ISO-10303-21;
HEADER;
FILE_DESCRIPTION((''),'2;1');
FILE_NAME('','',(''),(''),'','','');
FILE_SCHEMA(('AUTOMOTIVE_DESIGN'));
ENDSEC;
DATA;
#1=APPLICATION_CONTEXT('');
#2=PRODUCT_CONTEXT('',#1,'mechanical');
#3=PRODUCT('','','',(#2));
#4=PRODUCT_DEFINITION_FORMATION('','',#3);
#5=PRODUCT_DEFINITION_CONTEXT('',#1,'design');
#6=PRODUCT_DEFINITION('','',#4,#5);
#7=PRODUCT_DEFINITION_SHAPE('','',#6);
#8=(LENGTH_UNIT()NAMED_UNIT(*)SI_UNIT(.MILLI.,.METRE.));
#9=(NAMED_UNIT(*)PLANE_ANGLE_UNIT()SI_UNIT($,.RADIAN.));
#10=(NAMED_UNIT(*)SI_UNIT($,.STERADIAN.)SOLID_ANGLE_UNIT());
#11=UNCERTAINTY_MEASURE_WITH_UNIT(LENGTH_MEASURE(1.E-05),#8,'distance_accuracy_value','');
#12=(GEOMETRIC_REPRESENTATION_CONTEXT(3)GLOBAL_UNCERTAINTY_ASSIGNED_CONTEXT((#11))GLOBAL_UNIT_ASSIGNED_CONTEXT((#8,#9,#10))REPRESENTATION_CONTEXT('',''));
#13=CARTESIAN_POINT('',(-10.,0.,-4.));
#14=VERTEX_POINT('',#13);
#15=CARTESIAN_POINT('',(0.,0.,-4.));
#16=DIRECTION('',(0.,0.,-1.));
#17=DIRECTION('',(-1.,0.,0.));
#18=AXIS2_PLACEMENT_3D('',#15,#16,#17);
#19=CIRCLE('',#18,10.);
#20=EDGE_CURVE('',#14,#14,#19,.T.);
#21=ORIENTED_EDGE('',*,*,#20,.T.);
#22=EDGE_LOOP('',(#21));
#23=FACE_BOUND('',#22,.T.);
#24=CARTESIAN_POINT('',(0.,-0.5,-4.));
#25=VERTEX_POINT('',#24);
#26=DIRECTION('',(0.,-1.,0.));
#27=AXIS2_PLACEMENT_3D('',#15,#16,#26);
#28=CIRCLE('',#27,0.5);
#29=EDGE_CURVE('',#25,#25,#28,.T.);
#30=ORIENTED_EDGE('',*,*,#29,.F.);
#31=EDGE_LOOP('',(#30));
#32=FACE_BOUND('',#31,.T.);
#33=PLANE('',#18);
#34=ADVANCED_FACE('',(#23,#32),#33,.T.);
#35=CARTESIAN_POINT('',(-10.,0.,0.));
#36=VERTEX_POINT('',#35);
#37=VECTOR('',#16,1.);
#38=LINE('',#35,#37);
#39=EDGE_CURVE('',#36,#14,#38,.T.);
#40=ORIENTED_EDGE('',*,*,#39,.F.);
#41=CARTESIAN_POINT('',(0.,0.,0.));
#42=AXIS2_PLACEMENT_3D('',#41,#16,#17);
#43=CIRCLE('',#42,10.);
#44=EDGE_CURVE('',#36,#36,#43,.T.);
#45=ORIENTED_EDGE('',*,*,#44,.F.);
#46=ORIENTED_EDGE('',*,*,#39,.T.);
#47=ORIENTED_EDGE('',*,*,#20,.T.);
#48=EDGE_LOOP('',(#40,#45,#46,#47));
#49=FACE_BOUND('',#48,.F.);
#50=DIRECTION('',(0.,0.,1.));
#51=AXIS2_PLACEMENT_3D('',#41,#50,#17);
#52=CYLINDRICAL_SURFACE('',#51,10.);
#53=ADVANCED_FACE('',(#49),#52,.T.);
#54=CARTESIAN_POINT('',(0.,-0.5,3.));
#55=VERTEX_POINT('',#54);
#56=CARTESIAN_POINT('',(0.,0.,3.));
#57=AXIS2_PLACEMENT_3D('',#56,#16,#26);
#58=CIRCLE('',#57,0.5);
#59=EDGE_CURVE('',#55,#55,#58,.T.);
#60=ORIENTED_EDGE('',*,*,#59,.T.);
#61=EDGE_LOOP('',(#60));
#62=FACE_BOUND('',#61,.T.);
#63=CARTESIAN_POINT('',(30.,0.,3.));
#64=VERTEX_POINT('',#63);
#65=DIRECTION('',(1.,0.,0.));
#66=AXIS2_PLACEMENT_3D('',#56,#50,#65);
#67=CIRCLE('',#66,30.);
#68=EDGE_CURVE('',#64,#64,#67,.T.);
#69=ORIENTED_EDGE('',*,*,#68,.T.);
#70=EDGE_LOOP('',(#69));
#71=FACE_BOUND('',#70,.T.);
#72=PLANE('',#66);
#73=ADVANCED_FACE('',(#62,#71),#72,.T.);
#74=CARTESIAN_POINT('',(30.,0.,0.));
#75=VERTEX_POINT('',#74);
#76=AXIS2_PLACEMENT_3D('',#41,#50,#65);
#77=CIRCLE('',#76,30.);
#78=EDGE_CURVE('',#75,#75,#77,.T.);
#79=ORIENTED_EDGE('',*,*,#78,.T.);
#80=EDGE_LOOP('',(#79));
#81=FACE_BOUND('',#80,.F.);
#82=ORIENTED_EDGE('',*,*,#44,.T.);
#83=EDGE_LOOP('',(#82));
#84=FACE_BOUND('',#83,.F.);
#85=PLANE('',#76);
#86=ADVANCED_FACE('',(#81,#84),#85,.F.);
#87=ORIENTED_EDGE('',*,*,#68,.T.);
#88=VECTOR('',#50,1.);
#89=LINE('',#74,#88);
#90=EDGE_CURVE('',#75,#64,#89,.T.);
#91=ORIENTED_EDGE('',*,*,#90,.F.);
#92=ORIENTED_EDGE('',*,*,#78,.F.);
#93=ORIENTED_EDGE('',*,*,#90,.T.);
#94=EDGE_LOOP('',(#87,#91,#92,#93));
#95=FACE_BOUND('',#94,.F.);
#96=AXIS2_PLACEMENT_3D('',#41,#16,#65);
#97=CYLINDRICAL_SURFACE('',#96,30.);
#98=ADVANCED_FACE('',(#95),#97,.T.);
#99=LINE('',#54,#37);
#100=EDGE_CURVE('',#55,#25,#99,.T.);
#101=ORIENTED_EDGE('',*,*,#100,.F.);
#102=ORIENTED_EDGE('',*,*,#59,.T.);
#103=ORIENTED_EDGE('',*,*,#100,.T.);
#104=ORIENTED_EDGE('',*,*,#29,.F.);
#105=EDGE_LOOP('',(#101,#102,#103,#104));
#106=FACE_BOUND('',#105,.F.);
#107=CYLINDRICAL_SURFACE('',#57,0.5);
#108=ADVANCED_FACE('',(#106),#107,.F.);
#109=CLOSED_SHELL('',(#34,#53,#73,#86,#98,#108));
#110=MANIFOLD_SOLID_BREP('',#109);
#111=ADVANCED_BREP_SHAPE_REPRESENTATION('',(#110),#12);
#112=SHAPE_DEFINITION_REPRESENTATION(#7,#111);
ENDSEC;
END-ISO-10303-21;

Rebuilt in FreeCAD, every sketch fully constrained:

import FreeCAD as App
import Part
import Sketcher

V = App.Vector

doc = App.newDocument("Part")
body = doc.addObject("PartDesign::Body", "Body")

# Sketch on XY plane
sketch1 = doc.addObject("Sketcher::SketchObject", "Sketch")
body.addObject(sketch1)
sketch1.AttachmentSupport = (doc.XY_Plane, [""])
sketch1.MapMode = "FlatFace"
sketch1.addGeometry(Part.Circle(V(0, 0, 0), V(0, 0, 1), 30), False)
sketch1.addConstraint(Sketcher.Constraint("Coincident", 0, 3, -1, 1))
sketch1.addConstraint(Sketcher.Constraint("Diameter", 0, 60.0))
pad1 = doc.addObject("PartDesign::Pad", "Pad")
body.addObject(pad1)
pad1.Profile = sketch1
pad1.Length = 3

# Sketch on XY plane
sketch2 = doc.addObject("Sketcher::SketchObject", "Sketch001")
body.addObject(sketch2)
sketch2.AttachmentSupport = (doc.XY_Plane, [""])
sketch2.MapMode = "FlatFace"
sketch2.addGeometry(Part.Circle(V(0, 0, 0), V(0, 0, 1), 10), False)
sketch2.addConstraint(Sketcher.Constraint("Coincident", 0, 3, -1, 1))
sketch2.addConstraint(Sketcher.Constraint("Diameter", 0, 20.0))
pad2 = doc.addObject("PartDesign::Pad", "Pad001")
body.addObject(pad2)
pad2.Profile = sketch2
pad2.Length = 4
pad2.Reversed = True

# Sketch on XY plane
sketch3 = doc.addObject("Sketcher::SketchObject", "Sketch002")
body.addObject(sketch3)
sketch3.AttachmentSupport = (doc.XY_Plane, [""])
sketch3.MapMode = "FlatFace"
sketch3.AttachmentOffset = App.Placement(V(0, 0, 3), App.Rotation())
sketch3.addGeometry(Part.Circle(V(0, 0, 0), V(0, 0, 1), 0.5), False)
sketch3.addConstraint(Sketcher.Constraint("Coincident", 0, 3, -1, 1))
sketch3.addConstraint(Sketcher.Constraint("Diameter", 0, 1.0))
doc.recompute()
hole = doc.addObject("PartDesign::Hole", "Hole")
body.addObject(hole)
hole.Profile = sketch3
hole.ThreadType = "None"
hole.Diameter = 1
hole.DepthType = "ThroughAll"

doc.recompute()
